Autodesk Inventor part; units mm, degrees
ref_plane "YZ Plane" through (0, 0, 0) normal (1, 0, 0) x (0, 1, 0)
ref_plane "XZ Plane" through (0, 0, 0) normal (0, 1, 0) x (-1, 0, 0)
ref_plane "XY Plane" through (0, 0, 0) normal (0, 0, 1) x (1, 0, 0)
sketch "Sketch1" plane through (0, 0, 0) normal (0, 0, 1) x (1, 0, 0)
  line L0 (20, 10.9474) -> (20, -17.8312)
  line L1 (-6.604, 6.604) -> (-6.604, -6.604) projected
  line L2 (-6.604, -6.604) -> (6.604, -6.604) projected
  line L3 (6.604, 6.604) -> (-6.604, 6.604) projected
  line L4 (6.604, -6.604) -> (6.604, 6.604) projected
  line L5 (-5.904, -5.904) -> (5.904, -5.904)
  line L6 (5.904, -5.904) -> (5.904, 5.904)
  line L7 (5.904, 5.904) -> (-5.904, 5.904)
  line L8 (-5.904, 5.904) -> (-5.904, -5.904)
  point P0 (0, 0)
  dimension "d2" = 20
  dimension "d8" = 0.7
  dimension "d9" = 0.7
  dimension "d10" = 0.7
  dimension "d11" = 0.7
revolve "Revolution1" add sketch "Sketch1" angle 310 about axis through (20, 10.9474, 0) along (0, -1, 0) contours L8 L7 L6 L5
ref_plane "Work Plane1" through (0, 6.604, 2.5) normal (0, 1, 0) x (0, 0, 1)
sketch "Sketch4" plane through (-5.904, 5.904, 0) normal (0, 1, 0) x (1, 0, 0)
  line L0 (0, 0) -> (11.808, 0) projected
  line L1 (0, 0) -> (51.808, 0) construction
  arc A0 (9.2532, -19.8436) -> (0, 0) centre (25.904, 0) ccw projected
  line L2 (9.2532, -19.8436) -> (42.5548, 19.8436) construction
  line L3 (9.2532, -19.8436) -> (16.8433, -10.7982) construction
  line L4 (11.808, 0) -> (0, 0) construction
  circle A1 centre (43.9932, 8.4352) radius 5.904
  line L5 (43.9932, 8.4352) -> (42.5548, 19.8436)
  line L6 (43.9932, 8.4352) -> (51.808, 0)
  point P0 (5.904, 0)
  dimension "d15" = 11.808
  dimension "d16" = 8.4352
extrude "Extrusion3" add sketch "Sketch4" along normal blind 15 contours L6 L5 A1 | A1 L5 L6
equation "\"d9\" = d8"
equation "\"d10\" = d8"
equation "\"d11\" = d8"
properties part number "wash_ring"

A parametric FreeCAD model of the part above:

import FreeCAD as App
import Part
import Sketcher

V = App.Vector
Q = App.Units.Quantity

doc = App.newDocument("Part")
params = doc.addObject("Spreadsheet::Sheet", "Params")
for row, (alias, value) in enumerate([
    ("revolution_angle", "310 deg"),
    ("pad1_length", "15 mm"),
], start=1):
    params.set(f"A{row}", alias)
    params.set(f"B{row}", "=" + value)
    params.setAlias(f"B{row}", alias)

body = doc.addObject("PartDesign::Body", "Body")

# Sketch on XY plane
sketch1 = body.newObject("Sketcher::SketchObject", "Sketch")
sketch1.AttachmentSupport = (doc.getObject("XY_Plane"), [""])
sketch1.MapMode = "FlatFace"
sketch1.addGeometry(Part.LineSegment(V(-6, 6, 0), V(-6, -6, 0)), False)
sketch1.addGeometry(Part.LineSegment(V(-6, -6, 0), V(6, -6, 0)), False)
sketch1.addGeometry(Part.LineSegment(V(6, -6, 0), V(6, 6, 0)), False)
sketch1.addGeometry(Part.LineSegment(V(6, 6, 0), V(-6, 6, 0)), False)
sketch1.addGeometry(Part.LineSegment(V(20, 6, 0), V(20, -6, 0)), True)  # axis
sketch1.addConstraint(Sketcher.Constraint("Coincident", 0, 2, 1, 1))
sketch1.addConstraint(Sketcher.Constraint("Coincident", 1, 2, 2, 1))
sketch1.addConstraint(Sketcher.Constraint("Coincident", 2, 2, 3, 1))
sketch1.addConstraint(Sketcher.Constraint("Coincident", 3, 2, 0, 1))
sketch1.addConstraint(Sketcher.Constraint("Vertical", 0))
sketch1.addConstraint(Sketcher.Constraint("Horizontal", 1))
sketch1.addConstraint(Sketcher.Constraint("Vertical", 2))
sketch1.addConstraint(Sketcher.Constraint("Horizontal", 3))
sketch1.addConstraint(Sketcher.Constraint("Vertical", 4))
sketch1.addConstraint(Sketcher.Constraint("Symmetric", 0, 2, 2, 2, -1, 1))
sketch1.addConstraint(Sketcher.Constraint("Horizontal", 3, 2, 4, 1))
sketch1.addConstraint(Sketcher.Constraint("Horizontal", 1, 2, 4, 2))
sketch1.addConstraint(Sketcher.Constraint("Equal", 3, 0))
sketch1.addConstraint(Sketcher.Constraint("DistanceX", -1, 1, 4, 1, Q("20 mm")))
sketch1.addConstraint(Sketcher.Constraint("DistanceX", 1, 1, 1, 2, Q("11.808 mm")))
revolution = body.newObject("PartDesign::Revolution", "Revolution")
revolution.Profile = sketch1
revolution.ReferenceAxis = (sketch1, ["Axis0"])
revolution.setExpression("Angle", "Params.revolution_angle")

# Sketch on XZ plane
sketch2 = body.newObject("Sketcher::SketchObject", "Sketch001")
sketch2.AttachmentSupport = (doc.getObject("XZ_Plane"), [""])
sketch2.MapMode = "FlatFace"
sketch2.AttachmentOffset = App.Placement(V(0, 0, -5.904), App.Rotation())
sketch2.addGeometry(Part.Circle(V(38, -8, 0), V(0, 0, 1), 6), False)
sketch2.addConstraint(Sketcher.Constraint("Diameter", 0, Q("11.808 mm")))
sketch2.addConstraint(Sketcher.Constraint("DistanceY", 0, 3, -1, 1, Q("8.4352 mm")))
sketch2.addConstraint(Sketcher.Constraint("DistanceX", -1, 1, 0, 3, Q("38.0892 mm")))
pad1 = body.newObject("PartDesign::Pad", "Pad")
pad1.Profile = sketch2
pad1.setExpression("Length", "Params.pad1_length")
pad1.Reversed = True

doc.recompute()
